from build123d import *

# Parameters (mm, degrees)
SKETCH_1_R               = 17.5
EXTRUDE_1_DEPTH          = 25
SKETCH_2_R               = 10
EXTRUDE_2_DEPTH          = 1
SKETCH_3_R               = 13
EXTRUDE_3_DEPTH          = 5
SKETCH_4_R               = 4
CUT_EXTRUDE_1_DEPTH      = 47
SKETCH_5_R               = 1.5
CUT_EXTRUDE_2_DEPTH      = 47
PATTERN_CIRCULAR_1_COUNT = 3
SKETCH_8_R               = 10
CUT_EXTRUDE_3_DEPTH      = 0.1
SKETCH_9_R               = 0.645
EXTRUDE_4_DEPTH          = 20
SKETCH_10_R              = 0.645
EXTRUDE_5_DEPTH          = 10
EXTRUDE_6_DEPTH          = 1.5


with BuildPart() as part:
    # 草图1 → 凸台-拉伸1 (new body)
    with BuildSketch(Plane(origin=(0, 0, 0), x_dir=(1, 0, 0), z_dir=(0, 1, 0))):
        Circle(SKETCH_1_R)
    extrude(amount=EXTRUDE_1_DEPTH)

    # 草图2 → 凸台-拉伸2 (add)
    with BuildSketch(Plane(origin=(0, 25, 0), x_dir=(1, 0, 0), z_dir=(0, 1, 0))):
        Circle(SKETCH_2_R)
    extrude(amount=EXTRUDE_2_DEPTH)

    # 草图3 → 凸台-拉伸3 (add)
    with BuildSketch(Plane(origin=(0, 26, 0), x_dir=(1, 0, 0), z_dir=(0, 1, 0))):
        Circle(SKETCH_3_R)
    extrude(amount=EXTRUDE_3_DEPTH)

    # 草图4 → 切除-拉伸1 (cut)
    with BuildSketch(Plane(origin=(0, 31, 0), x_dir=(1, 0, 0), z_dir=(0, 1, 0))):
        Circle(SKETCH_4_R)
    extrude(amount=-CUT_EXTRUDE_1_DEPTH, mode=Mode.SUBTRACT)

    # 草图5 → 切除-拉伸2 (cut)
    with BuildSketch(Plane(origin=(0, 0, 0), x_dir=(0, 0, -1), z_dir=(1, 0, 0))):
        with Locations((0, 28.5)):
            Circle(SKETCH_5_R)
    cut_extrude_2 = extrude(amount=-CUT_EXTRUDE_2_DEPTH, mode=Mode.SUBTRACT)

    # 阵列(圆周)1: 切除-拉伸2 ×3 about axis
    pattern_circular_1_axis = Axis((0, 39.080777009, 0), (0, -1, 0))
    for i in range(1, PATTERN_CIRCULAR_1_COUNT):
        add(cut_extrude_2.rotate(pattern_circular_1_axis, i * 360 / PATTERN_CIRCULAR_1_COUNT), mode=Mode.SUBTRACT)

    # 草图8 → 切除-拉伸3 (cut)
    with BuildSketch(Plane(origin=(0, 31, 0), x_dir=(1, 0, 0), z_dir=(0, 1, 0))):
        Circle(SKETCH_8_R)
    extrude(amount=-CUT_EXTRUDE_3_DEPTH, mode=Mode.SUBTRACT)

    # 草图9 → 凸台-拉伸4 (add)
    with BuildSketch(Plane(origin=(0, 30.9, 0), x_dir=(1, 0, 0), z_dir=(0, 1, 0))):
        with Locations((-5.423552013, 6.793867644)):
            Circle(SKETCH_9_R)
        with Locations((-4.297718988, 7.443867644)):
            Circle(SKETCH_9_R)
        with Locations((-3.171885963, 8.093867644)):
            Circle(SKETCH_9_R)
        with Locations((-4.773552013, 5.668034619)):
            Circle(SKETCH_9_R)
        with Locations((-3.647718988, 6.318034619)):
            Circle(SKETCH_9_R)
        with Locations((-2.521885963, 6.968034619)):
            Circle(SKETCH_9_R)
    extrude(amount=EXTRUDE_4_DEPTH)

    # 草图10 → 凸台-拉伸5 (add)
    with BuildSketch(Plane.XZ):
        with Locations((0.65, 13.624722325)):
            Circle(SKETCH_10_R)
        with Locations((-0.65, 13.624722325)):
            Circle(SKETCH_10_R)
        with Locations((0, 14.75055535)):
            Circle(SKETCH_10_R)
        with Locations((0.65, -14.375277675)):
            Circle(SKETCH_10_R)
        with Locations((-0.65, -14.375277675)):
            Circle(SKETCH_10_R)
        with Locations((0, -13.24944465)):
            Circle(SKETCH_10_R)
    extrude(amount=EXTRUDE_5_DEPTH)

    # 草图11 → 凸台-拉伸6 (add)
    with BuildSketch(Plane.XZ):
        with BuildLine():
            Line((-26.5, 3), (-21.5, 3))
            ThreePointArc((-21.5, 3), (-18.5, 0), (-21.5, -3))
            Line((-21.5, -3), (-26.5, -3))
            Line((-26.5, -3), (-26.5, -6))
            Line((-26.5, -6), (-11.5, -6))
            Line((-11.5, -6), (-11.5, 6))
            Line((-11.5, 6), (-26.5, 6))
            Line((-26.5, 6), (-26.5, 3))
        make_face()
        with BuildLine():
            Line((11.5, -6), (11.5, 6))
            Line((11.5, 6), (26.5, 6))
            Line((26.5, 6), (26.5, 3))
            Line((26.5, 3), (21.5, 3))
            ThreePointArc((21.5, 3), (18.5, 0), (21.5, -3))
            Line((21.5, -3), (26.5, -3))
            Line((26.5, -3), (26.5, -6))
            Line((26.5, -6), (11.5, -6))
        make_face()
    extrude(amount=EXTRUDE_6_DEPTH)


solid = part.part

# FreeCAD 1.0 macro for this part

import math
import FreeCAD as App
import Part
import Sketcher

V = App.Vector
Q = App.Units.Quantity

doc = App.newDocument("Part")
body = doc.addObject("PartDesign::Body", "Body")

# Sketch on XZ plane
sketch1 = doc.addObject("Sketcher::SketchObject", "Sketch")
body.addObject(sketch1)
sketch1.AttachmentSupport = (doc.XZ_Plane, [""])
sketch1.MapMode = "FlatFace"
sketch1.addGeometry(Part.Circle(V(0, 0, 0), V(0, 0, 1), 18), False)
sketch1.addConstraint([
    Sketcher.Constraint("Coincident", 0, 3, -1, 1),
    Sketcher.Constraint("Diameter", 0, Q("35 mm")),
])
pad1 = doc.addObject("PartDesign::Pad", "Pad")
body.addObject(pad1)
pad1.Profile = sketch1
pad1.Length = 25
pad1.Reversed = True

# Sketch on XZ plane
sketch2 = doc.addObject("Sketcher::SketchObject", "Sketch001")
body.addObject(sketch2)
sketch2.AttachmentSupport = (doc.XZ_Plane, [""])
sketch2.MapMode = "FlatFace"
sketch2.AttachmentOffset = App.Placement(V(0, 0, -25), App.Rotation())
sketch2.addGeometry(Part.Circle(V(0, 0, 0), V(0, 0, 1), 10), False)
sketch2.addConstraint([
    Sketcher.Constraint("Coincident", 0, 3, -1, 1),
    Sketcher.Constraint("Diameter", 0, Q("20 mm")),
])
pad2 = doc.addObject("PartDesign::Pad", "Pad001")
body.addObject(pad2)
pad2.Profile = sketch2
pad2.Length = 1
pad2.Reversed = True

# Sketch on XZ plane
sketch3 = doc.addObject("Sketcher::SketchObject", "Sketch002")
body.addObject(sketch3)
sketch3.AttachmentSupport = (doc.XZ_Plane, [""])
sketch3.MapMode = "FlatFace"
sketch3.AttachmentOffset = App.Placement(V(0, 0, -26), App.Rotation())
sketch3.addGeometry(Part.Circle(V(0, 0, 0), V(0, 0, 1), 13), False)
sketch3.addConstraint([
    Sketcher.Constraint("Coincident", 0, 3, -1, 1),
    Sketcher.Constraint("Diameter", 0, Q("26 mm")),
])
pad3 = doc.addObject("PartDesign::Pad", "Pad002")
body.addObject(pad3)
pad3.Profile = sketch3
pad3.Length = 5
pad3.Reversed = True

# Sketch on XZ plane
sketch4 = doc.addObject("Sketcher::SketchObject", "Sketch003")
body.addObject(sketch4)
sketch4.AttachmentSupport = (doc.XZ_Plane, [""])
sketch4.MapMode = "FlatFace"
sketch4.AttachmentOffset = App.Placement(V(0, 0, -31), App.Rotation())
sketch4.addGeometry(Part.Circle(V(0, 0, 0), V(0, 0, 1), 4), False)
sketch4.addConstraint([
    Sketcher.Constraint("Coincident", 0, 3, -1, 1),
    Sketcher.Constraint("Diameter", 0, Q("8 mm")),
])
pocket1 = doc.addObject("PartDesign::Pocket", "Pocket")
body.addObject(pocket1)
pocket1.Profile = sketch4
pocket1.Length = 47
pocket1.Reversed = True

# Sketch on YZ plane
sketch5 = doc.addObject("Sketcher::SketchObject", "Sketch004")
body.addObject(sketch5)
sketch5.AttachmentSupport = (doc.YZ_Plane, [""])
sketch5.MapMode = "FlatFace"
sketch5.addGeometry(Part.Circle(V(28.5, 0, 0), V(0, 0, 1), 1.5), False)
sketch5.addConstraint([
    Sketcher.Constraint("PointOnObject", 0, 3, -1),
    Sketcher.Constraint("Diameter", 0, Q("3 mm")),
    Sketcher.Constraint("DistanceX", -1, 1, 0, 3, Q("28.5 mm")),
])
pocket2 = doc.addObject("PartDesign::Pocket", "Pocket001")
body.addObject(pocket2)
pocket2.Profile = sketch5
pocket2.Length = 47
doc.recompute()

polarpattern = doc.addObject("PartDesign::PolarPattern", "PolarPattern")
body.addObject(polarpattern)
polarpattern.Originals = [pocket2]
polarpattern.Axis = (doc.Y_Axis, [""])
polarpattern.Angle = 360
polarpattern.Occurrences = 3
body.Tip = polarpattern

# Sketch on XZ plane
sketch6 = doc.addObject("Sketcher::SketchObject", "Sketch005")
body.addObject(sketch6)
sketch6.AttachmentSupport = (doc.XZ_Plane, [""])
sketch6.MapMode = "FlatFace"
sketch6.AttachmentOffset = App.Placement(V(0, 0, -31), App.Rotation())
sketch6.addGeometry(Part.Circle(V(0, 0, 0), V(0, 0, 1), 10), False)
sketch6.addConstraint([
    Sketcher.Constraint("Coincident", 0, 3, -1, 1),
    Sketcher.Constraint("Diameter", 0, Q("20 mm")),
])
pocket3 = doc.addObject("PartDesign::Pocket", "Pocket002")
body.addObject(pocket3)
pocket3.Profile = sketch6
pocket3.Length = 0.1
pocket3.Reversed = True

# Sketch on XZ plane
sketch7 = doc.addObject("Sketcher::SketchObject", "Sketch006")
body.addObject(sketch7)
sketch7.AttachmentSupport = (doc.XZ_Plane, [""])
sketch7.MapMode = "FlatFace"
sketch7.AttachmentOffset = App.Placement(V(0, 0, -30.9), App.Rotation())
sketch7.addGeometry([
    Part.Circle(V(-5.4, -6.8, 0), V(0, 0, 1), 0.6),  # 0
    Part.Circle(V(-4.3, -7.4, 0), V(0, 0, 1), 0.6),  # 1
    Part.Circle(V(-3.2, -8.1, 0), V(0, 0, 1), 0.6),  # 2
    Part.Circle(V(-4.8, -5.7, 0), V(0, 0, 1), 0.6),  # 3
    Part.Circle(V(-3.6, -6.3, 0), V(0, 0, 1), 0.6),  # 4
    Part.Circle(V(-2.5, -7, 0), V(0, 0, 1), 0.6),  # 5
], False)
sketch7.addConstraint([
    Sketcher.Constraint("Equal", 0, 1),
    Sketcher.Constraint("Equal", 1, 2),
    Sketcher.Constraint("Equal", 2, 3),
    Sketcher.Constraint("Equal", 3, 4),
    Sketcher.Constraint("Equal", 4, 5),
    Sketcher.Constraint("Diameter", 0, Q("1.29 mm")),
    Sketcher.Constraint("DistanceY", 2, 3, 0, 3, Q("1.3 mm")),
    Sketcher.Constraint("DistanceY", 5, 3, 3, 3, Q("1.3 mm")),
    Sketcher.Constraint("DistanceY", 1, 3, 0, 3, Q("0.65 mm")),
    Sketcher.Constraint("DistanceX", 0, 3, 3, 3, Q("0.65 mm")),
    Sketcher.Constraint("DistanceY", 4, 3, 3, 3, Q("0.65 mm")),
    Sketcher.Constraint("DistanceX", 1, 3, 4, 3, Q("0.65 mm")),
    Sketcher.Constraint("DistanceX", 2, 3, 5, 3, Q("0.65 mm")),
    Sketcher.Constraint("DistanceX", 1, 3, -1, 1, Q("4.297719 mm")),
    Sketcher.Constraint("DistanceX", 0, 3, -1, 1, Q("5.423552 mm")),
    Sketcher.Constraint("DistanceY", 0, 3, -1, 1, Q("6.793868 mm")),
    Sketcher.Constraint("DistanceX", 2, 3, -1, 1, Q("3.171886 mm")),
    Sketcher.Constraint("DistanceY", 3, 3, -1, 1, Q("5.668035 mm")),
])
pad4 = doc.addObject("PartDesign::Pad", "Pad003")
body.addObject(pad4)
pad4.Profile = sketch7
pad4.Length = 20
pad4.Reversed = True

# Sketch on XZ plane
sketch8 = doc.addObject("Sketcher::SketchObject", "Sketch007")
body.addObject(sketch8)
sketch8.AttachmentSupport = (doc.XZ_Plane, [""])
sketch8.MapMode = "FlatFace"
sketch8.addGeometry([
    Part.Circle(V(0.7, 13.6, 0), V(0, 0, 1), 0.6),  # 0
    Part.Circle(V(-0.7, 13.6, 0), V(0, 0, 1), 0.6),  # 1
    Part.Circle(V(0, 14.8, 0), V(0, 0, 1), 0.6),  # 2
    Part.Circle(V(0.7, -14.4, 0), V(0, 0, 1), 0.6),  # 3
    Part.Circle(V(-0.7, -14.4, 0), V(0, 0, 1), 0.6),  # 4
    Part.Circle(V(0, -13.2, 0), V(0, 0, 1), 0.6),  # 5
], False)
sketch8.addConstraint([
    Sketcher.Constraint("Equal", 0, 1),
    Sketcher.Constraint("Equal", 1, 2),
    Sketcher.Constraint("Equal", 2, 3),
    Sketcher.Constraint("Equal", 3, 4),
    Sketcher.Constraint("Equal", 4, 5),
    Sketcher.Constraint("Symmetric", 0, 3, 1, 3, -2),
    Sketcher.Constraint("Symmetric", 3, 3, 4, 3, -2),
    Sketcher.Constraint("PointOnObject", 2, 3, -2),
    Sketcher.Constraint("PointOnObject", 5, 3, -2),
    Sketcher.Constraint("Vertical", 0, 3, 3, 3),
    Sketcher.Constraint("Diameter", 0, Q("1.29 mm")),
    Sketcher.Constraint("DistanceY", 3, 3, 0, 3, Q("28 mm")),
    Sketcher.Constraint("DistanceY", 5, 3, 2, 3, Q("28 mm")),
    Sketcher.Constraint("DistanceX", 1, 3, 0, 3, Q("1.3 mm")),
    Sketcher.Constraint("DistanceY", -1, 1, 0, 3, Q("13.624722 mm")),
    Sketcher.Constraint("DistanceY", -1, 1, 2, 3, Q("14.750555 mm")),
])
pad5 = doc.addObject("PartDesign::Pad", "Pad004")
body.addObject(pad5)
pad5.Profile = sketch8
pad5.Length = 10

# Sketch on XZ plane
sketch9 = doc.addObject("Sketcher::SketchObject", "Sketch008")
body.addObject(sketch9)
sketch9.AttachmentSupport = (doc.XZ_Plane, [""])
sketch9.MapMode = "FlatFace"
sketch9.addGeometry([
    Part.LineSegment(V(-26.5, 3, 0), V(-21.5, 3, 0)),  # 0
    Part.ArcOfCircle(Part.Circle(V(-21.5, 0, 0), V(0, 0, 1), 3), math.radians(-90), math.radians(90)),  # 1
    Part.LineSegment(V(-21.5, -3, 0), V(-26.5, -3, 0)),  # 2
    Part.LineSegment(V(-26.5, -3, 0), V(-26.5, -6, 0)),  # 3
    Part.LineSegment(V(-26.5, -6, 0), V(-11.5, -6, 0)),  # 4
    Part.LineSegment(V(-11.5, -6, 0), V(-11.5, 6, 0)),  # 5
    Part.LineSegment(V(-11.5, 6, 0), V(-26.5, 6, 0)),  # 6
    Part.LineSegment(V(-26.5, 6, 0), V(-26.5, 3, 0)),  # 7
    Part.LineSegment(V(11.5, 6, 0), V(11.5, -6, 0)),  # 8
    Part.LineSegment(V(11.5, -6, 0), V(26.5, -6, 0)),  # 9
    Part.LineSegment(V(26.5, -6, 0), V(26.5, -3, 0)),  # 10
    Part.LineSegment(V(26.5, -3, 0), V(21.5, -3, 0)),  # 11
    Part.ArcOfCircle(Part.Circle(V(21.5, 0, 0), V(0, 0, 1), 3), math.radians(90), math.radians(270)),  # 12
    Part.LineSegment(V(21.5, 3, 0), V(26.5, 3, 0)),  # 13
    Part.LineSegment(V(26.5, 3, 0), V(26.5, 6, 0)),  # 14
    Part.LineSegment(V(26.5, 6, 0), V(11.5, 6, 0)),  # 15
], False)
sketch9.addConstraint([
    Sketcher.Constraint("Tangent", 0, 2, 1, 2),
    Sketcher.Constraint("Tangent", 1, 1, 2, 1),
    Sketcher.Constraint("Coincident", 2, 2, 3, 1),
    Sketcher.Constraint("Coincident", 3, 2, 4, 1),
    Sketcher.Constraint("Coincident", 4, 2, 5, 1),
    Sketcher.Constraint("Coincident", 5, 2, 6, 1),
    Sketcher.Constraint("Coincident", 6, 2, 7, 1),
    Sketcher.Constraint("Coincident", 7, 2, 0, 1),
    Sketcher.Constraint("Coincident", 8, 2, 9, 1),
    Sketcher.Constraint("Coincident", 9, 2, 10, 1),
    Sketcher.Constraint("Coincident", 10, 2, 11, 1),
    Sketcher.Constraint("Tangent", 11, 2, 12, 2),
    Sketcher.Constraint("Tangent", 12, 1, 13, 1),
    Sketcher.Constraint("Coincident", 13, 2, 14, 1),
    Sketcher.Constraint("Coincident", 14, 2, 15, 1),
    Sketcher.Constraint("Coincident", 15, 2, 8, 1),
    Sketcher.Constraint("Horizontal", 0),
    Sketcher.Constraint("Horizontal", 2),
    Sketcher.Constraint("Vertical", 3),
    Sketcher.Constraint("Horizontal", 4),
    Sketcher.Constraint("Vertical", 5),
    Sketcher.Constraint("Horizontal", 6),
    Sketcher.Constraint("Vertical", 7),
    Sketcher.Constraint("Vertical", 8),
    Sketcher.Constraint("Horizontal", 9),
    Sketcher.Constraint("Vertical", 10),
    Sketcher.Constraint("Horizontal", 11),
    Sketcher.Constraint("Horizontal", 13),
    Sketcher.Constraint("Vertical", 14),
    Sketcher.Constraint("Horizontal", 15),
    Sketcher.Constraint("Equal", 1, 12),
    Sketcher.Constraint("Symmetric", 1, 3, 12, 3, -1, 1),
    Sketcher.Constraint("Symmetric", 5, 2, 8, 2, -1, 1),
    Sketcher.Constraint("Symmetric", 3, 2, 14, 2, -1, 1),
    Sketcher.Constraint("Symmetric", 3, 2, 9, 2, -2),
    Sketcher.Constraint("Symmetric", 7, 2, 13, 2, -2),
    Sketcher.Constraint("Radius", 1, Q("3 mm")),
    Sketcher.Constraint("DistanceX", 0, 1, 0, 2, Q("5 mm")),
    Sketcher.Constraint("DistanceX", 4, 1, 4, 2, Q("15 mm")),
    Sketcher.Constraint("DistanceY", 3, 2, 3, 1, Q("3 mm")),
    Sketcher.Constraint("DistanceX", 1, 3, 12, 3, Q("43 mm")),
])
pad6 = doc.addObject("PartDesign::Pad", "Pad005")
body.addObject(pad6)
pad6.Profile = sketch9
pad6.Length = 1.5

doc.recompute()
